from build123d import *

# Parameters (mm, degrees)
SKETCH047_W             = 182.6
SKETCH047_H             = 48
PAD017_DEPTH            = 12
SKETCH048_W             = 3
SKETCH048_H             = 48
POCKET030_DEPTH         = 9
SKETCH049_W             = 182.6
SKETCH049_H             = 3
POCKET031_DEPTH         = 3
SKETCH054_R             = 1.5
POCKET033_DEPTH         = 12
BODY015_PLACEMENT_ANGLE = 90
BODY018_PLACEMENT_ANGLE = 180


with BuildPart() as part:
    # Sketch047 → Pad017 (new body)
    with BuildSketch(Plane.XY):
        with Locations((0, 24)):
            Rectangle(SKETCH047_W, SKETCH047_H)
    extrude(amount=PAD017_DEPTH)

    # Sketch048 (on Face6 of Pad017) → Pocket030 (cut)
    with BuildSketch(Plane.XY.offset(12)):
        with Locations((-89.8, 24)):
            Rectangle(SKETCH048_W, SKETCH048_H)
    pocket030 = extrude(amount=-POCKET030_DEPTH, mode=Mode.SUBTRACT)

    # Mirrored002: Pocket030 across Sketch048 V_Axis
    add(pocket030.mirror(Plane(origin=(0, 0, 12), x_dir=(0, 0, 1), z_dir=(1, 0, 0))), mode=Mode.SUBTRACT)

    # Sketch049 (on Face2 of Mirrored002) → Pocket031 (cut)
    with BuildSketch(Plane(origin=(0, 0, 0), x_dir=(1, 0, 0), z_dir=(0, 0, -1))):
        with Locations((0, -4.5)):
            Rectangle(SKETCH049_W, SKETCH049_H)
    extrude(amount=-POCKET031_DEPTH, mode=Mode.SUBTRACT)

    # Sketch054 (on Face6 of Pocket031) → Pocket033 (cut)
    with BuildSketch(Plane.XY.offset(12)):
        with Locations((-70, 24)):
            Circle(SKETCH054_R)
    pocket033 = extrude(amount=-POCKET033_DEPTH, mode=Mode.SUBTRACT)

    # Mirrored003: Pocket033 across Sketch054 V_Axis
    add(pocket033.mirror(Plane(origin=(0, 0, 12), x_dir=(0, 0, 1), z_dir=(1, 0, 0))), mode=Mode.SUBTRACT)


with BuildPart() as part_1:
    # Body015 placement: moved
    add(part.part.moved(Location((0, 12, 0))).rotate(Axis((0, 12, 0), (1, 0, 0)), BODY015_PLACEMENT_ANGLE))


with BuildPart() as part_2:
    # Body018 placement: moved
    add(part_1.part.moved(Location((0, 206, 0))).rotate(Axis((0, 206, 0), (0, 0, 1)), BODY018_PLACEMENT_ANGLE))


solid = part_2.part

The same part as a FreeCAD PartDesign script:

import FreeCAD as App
import Part
import Sketcher
from FreeCAD import Vector
Q = App.Units.Quantity

doc = App.newDocument("Part")
body = doc.addObject("PartDesign::Body", "Body")

# Sketch on XY plane
sketch1 = body.newObject("Sketcher::SketchObject", "Sketch")
sketch1.AttachmentSupport = (doc.getObject("XY_Plane"), [""])
sketch1.MapMode = "FlatFace"
sketch1.addGeometry([
    Part.LineSegment(Vector(-91, 48, 0), Vector(-91, 0, 0)),
    Part.LineSegment(Vector(-91, 0, 0), Vector(91, 0, 0)),
    Part.LineSegment(Vector(91, 0, 0), Vector(91, 48, 0)),
    Part.LineSegment(Vector(91, 48, 0), Vector(-91, 48, 0)),
], False)
sketch1.addConstraint([
    Sketcher.Constraint("Coincident", 0, 2, 1, 1),
    Sketcher.Constraint("Coincident", 1, 2, 2, 1),
    Sketcher.Constraint("Coincident", 2, 2, 3, 1),
    Sketcher.Constraint("Coincident", 3, 2, 0, 1),
    Sketcher.Constraint("Vertical", 0),
    Sketcher.Constraint("Horizontal", 1),
    Sketcher.Constraint("Vertical", 2),
    Sketcher.Constraint("Horizontal", 3),
    Sketcher.Constraint("Symmetric", 0, 2, 1, 2, -1, 1),
    Sketcher.Constraint("DistanceY", 0, 2, 0, 1, Q("48 mm")),
    Sketcher.Constraint("DistanceX", 1, 1, 1, 2, Q("182.6 mm")),
])
pad1 = body.newObject("PartDesign::Pad", "Pad")
pad1.Profile = sketch1
pad1.Length = 12

# Sketch on XY plane
sketch2 = body.newObject("Sketcher::SketchObject", "Sketch001")
sketch2.AttachmentSupport = (doc.getObject("XY_Plane"), [""])
sketch2.MapMode = "FlatFace"
sketch2.AttachmentOffset = App.Placement(Vector(0, 0, 12), App.Rotation())
sketch2.addGeometry([
    Part.LineSegment(Vector(-91.3, 48, 0), Vector(-91.3, 0, 0)),
    Part.LineSegment(Vector(-91.3, 0, 0), Vector(-88.3, 0, 0)),
    Part.LineSegment(Vector(-88.3, 0, 0), Vector(-88.3, 48, 0)),
    Part.LineSegment(Vector(-88.3, 48, 0), Vector(-91.3, 48, 0)),
], False)
sketch2.addConstraint([
    Sketcher.Constraint("Coincident", 0, 2, 1, 1),
    Sketcher.Constraint("Coincident", 1, 2, 2, 1),
    Sketcher.Constraint("Coincident", 2, 2, 3, 1),
    Sketcher.Constraint("Coincident", 3, 2, 0, 1),
    Sketcher.Constraint("Vertical", 0),
    Sketcher.Constraint("Horizontal", 1),
    Sketcher.Constraint("Vertical", 2),
    Sketcher.Constraint("Horizontal", 3),
    Sketcher.Constraint("PointOnObject", 0, 2, -1),
    Sketcher.Constraint("DistanceX", 1, 1, 1, 2, Q("3 mm")),
    Sketcher.Constraint("DistanceY", 0, 2, 0, 1, Q("48 mm")),
    Sketcher.Constraint("DistanceX", 0, 2, -1, 1, Q("91.3 mm")),
])
pocket1 = body.newObject("PartDesign::Pocket", "Pocket")
pocket1.Profile = sketch2
pocket1.Length = 9
doc.recompute()

mirrored = body.newObject("PartDesign::Mirrored", "Mirrored")
mirrored.Originals = [pocket1]
mirrored.MirrorPlane = (doc.getObject("YZ_Plane"), [""])
body.Tip = mirrored

# Sketch on XY plane
sketch3 = body.newObject("Sketcher::SketchObject", "Sketch002")
sketch3.AttachmentSupport = (doc.getObject("XY_Plane"), [""])
sketch3.MapMode = "FlatFace"
sketch3.addGeometry([
    Part.LineSegment(Vector(-91.3, 3, 0), Vector(-91.3, 6, 0)),
    Part.LineSegment(Vector(-91.3, 6, 0), Vector(91.3, 6, 0)),
    Part.LineSegment(Vector(91.3, 6, 0), Vector(91.3, 3, 0)),
    Part.LineSegment(Vector(91.3, 3, 0), Vector(-91.3, 3, 0)),
], False)
sketch3.addConstraint([
    Sketcher.Constraint("Coincident", 0, 2, 1, 1),
    Sketcher.Constraint("Coincident", 1, 2, 2, 1),
    Sketcher.Constraint("Coincident", 2, 2, 3, 1),
    Sketcher.Constraint("Coincident", 3, 2, 0, 1),
    Sketcher.Constraint("Vertical", 0),
    Sketcher.Constraint("Horizontal", 1),
    Sketcher.Constraint("Vertical", 2),
    Sketcher.Constraint("Horizontal", 3),
    Sketcher.Constraint("DistanceY", 0, 1, 0, 2, Q("3 mm")),
    Sketcher.Constraint("DistanceX", 1, 1, 1, 2, Q("182.6 mm")),
    Sketcher.Constraint("DistanceY", -1, 1, 0, 2, Q("6 mm")),
    Sketcher.Constraint("DistanceX", 0, 2, -1, 1, Q("91.3 mm")),
])
pocket2 = body.newObject("PartDesign::Pocket", "Pocket001")
pocket2.Profile = sketch3
pocket2.Length = 3
pocket2.Reversed = True

# Sketch on XY plane
sketch4 = body.newObject("Sketcher::SketchObject", "Sketch003")
sketch4.AttachmentSupport = (doc.getObject("XY_Plane"), [""])
sketch4.MapMode = "FlatFace"
sketch4.AttachmentOffset = App.Placement(Vector(0, 0, 12), App.Rotation())
sketch4.addGeometry(Part.Circle(Vector(-70, 24, 0), Vector(0, 0, 1), 1.5), False)
sketch4.addConstraint([
    Sketcher.Constraint("Diameter", 0, Q("3 mm")),
    Sketcher.Constraint("DistanceX", 0, 3, -1, 1, Q("70 mm")),
    Sketcher.Constraint("DistanceY", -1, 1, 0, 3, Q("24 mm")),
])
pocket3 = body.newObject("PartDesign::Pocket", "Pocket002")
pocket3.Profile = sketch4
pocket3.Length = 12
doc.recompute()

mirrored2 = body.newObject("PartDesign::Mirrored", "Mirrored001")
mirrored2.Originals = [pocket3]
mirrored2.MirrorPlane = (doc.getObject("YZ_Plane"), [""])
body.Tip = mirrored2
body2 = doc.addObject("PartDesign::Body", "Body001")
doc.recompute()

body.Placement = App.Placement(Vector(0, 12, 0), App.Rotation(Vector(1, 0, 0), 90))
boolean = body2.newObject("PartDesign::Boolean", "Boolean")
boolean.Type = "Fuse"
boolean.addObjects([body])
body3 = doc.addObject("PartDesign::Body", "Body002")
doc.recompute()

body2.Placement = App.Placement(Vector(0, 206, 0), App.Rotation(Vector(0, 0, 1), 180))
boolean2 = body3.newObject("PartDesign::Boolean", "Boolean001")
boolean2.Type = "Fuse"
boolean2.addObjects([body2])

doc.recompute()
